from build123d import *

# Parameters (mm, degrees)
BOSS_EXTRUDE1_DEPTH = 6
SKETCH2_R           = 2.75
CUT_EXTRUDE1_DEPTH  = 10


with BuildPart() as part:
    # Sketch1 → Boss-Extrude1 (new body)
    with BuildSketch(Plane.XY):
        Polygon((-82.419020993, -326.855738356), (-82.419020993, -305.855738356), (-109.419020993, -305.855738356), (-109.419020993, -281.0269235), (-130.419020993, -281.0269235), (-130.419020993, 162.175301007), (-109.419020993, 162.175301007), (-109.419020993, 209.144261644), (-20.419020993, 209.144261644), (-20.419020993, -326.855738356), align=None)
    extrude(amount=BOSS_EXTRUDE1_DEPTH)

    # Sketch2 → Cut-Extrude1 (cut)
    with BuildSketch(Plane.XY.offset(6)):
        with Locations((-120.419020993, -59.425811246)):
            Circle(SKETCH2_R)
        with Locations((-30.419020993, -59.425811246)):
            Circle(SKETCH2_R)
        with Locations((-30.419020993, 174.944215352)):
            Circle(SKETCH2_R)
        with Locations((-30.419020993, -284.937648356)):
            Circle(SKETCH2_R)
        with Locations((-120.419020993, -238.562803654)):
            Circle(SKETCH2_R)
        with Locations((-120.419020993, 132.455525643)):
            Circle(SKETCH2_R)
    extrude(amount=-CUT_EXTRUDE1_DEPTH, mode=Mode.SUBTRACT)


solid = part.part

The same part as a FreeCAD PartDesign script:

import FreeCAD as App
import Part
import Sketcher

V = App.Vector

doc = App.newDocument("Part")
params = doc.addObject("Spreadsheet::Sheet", "Params")
for row, (alias, value) in enumerate([
    ("sketch1_width", "62 mm"),
    ("sketch1_width2", "89 mm"),
    ("sketch1_width3", "21 mm"),
    ("sketch1_height", "536 mm"),
    ("pad1_length", "6 mm"),
    ("sketch2_diameter", "5.5 mm"),
    ("pocket1_length", "10 mm"),
], start=1):
    params.set(f"A{row}", alias)
    params.set(f"B{row}", "=" + value)
    params.setAlias(f"B{row}", alias)

body = doc.addObject("PartDesign::Body", "Body")

sketch1 = doc.addObject("Sketcher::SketchObject", "Sketch")
body.addObject(sketch1)
sketch1.AttachmentSupport = (doc.XY_Plane, [""])
sketch1.MapMode = "FlatFace"
sketch1.addGeometry(Part.LineSegment(V(-82, -306, 0), V(-82, -327, 0)), False)
sketch1.addGeometry(Part.LineSegment(V(-82, -327, 0), V(-20, -327, 0)), False)
sketch1.addGeometry(Part.LineSegment(V(-20, -327, 0), V(-20, 209, 0)), False)
sketch1.addGeometry(Part.LineSegment(V(-20, 209, 0), V(-109, 209, 0)), False)
sketch1.addGeometry(Part.LineSegment(V(-109, 209, 0), V(-109, 162, 0)), False)
sketch1.addGeometry(Part.LineSegment(V(-109, 162, 0), V(-130, 162, 0)), False)
sketch1.addGeometry(Part.LineSegment(V(-130, 162, 0), V(-130, -281, 0)), False)
sketch1.addGeometry(Part.LineSegment(V(-130, -281, 0), V(-109, -281, 0)), False)
sketch1.addGeometry(Part.LineSegment(V(-109, -281, 0), V(-109, -306, 0)), False)
sketch1.addGeometry(Part.LineSegment(V(-109, -306, 0), V(-82, -306, 0)), False)
sketch1.addConstraint(Sketcher.Constraint("Coincident", 0, 2, 1, 1))
sketch1.addConstraint(Sketcher.Constraint("Coincident", 1, 2, 2, 1))
sketch1.addConstraint(Sketcher.Constraint("Coincident", 2, 2, 3, 1))
sketch1.addConstraint(Sketcher.Constraint("Coincident", 3, 2, 4, 1))
sketch1.addConstraint(Sketcher.Constraint("Coincident", 4, 2, 5, 1))
sketch1.addConstraint(Sketcher.Constraint("Coincident", 5, 2, 6, 1))
sketch1.addConstraint(Sketcher.Constraint("Coincident", 6, 2, 7, 1))
sketch1.addConstraint(Sketcher.Constraint("Coincident", 7, 2, 8, 1))
sketch1.addConstraint(Sketcher.Constraint("Coincident", 8, 2, 9, 1))
sketch1.addConstraint(Sketcher.Constraint("Coincident", 9, 2, 0, 1))
sketch1.addConstraint(Sketcher.Constraint("Vertical", 0))
sketch1.addConstraint(Sketcher.Constraint("Horizontal", 1))
sketch1.addConstraint(Sketcher.Constraint("Vertical", 2))
sketch1.addConstraint(Sketcher.Constraint("Horizontal", 3))
sketch1.addConstraint(Sketcher.Constraint("Vertical", 4))
sketch1.addConstraint(Sketcher.Constraint("Horizontal", 5))
sketch1.addConstraint(Sketcher.Constraint("Vertical", 6))
sketch1.addConstraint(Sketcher.Constraint("Horizontal", 7))
sketch1.addConstraint(Sketcher.Constraint("Vertical", 8))
sketch1.addConstraint(Sketcher.Constraint("Horizontal", 9))
sketch1.addConstraint(Sketcher.Constraint("Vertical", 4, 2, 7, 2))
sketch1.addConstraint(Sketcher.Constraint("Equal", 7, 0))
sketch1.addConstraint(Sketcher.Constraint("DistanceX", 1, 1, 1, 2, 62.0))
sketch1.addConstraint(Sketcher.Constraint("DistanceX", 3, 2, 3, 1, 89.0))
sketch1.addConstraint(Sketcher.Constraint("DistanceX", 5, 2, 5, 1, 21.0))
sketch1.addConstraint(Sketcher.Constraint("DistanceY", 2, 1, 2, 2, 536.0))
sketch1.addConstraint(Sketcher.Constraint("DistanceY", 4, 2, 4, 1, 46.968961))
sketch1.addConstraint(Sketcher.Constraint("DistanceY", -1, 1, 4, 2, 162.175301))
sketch1.addConstraint(Sketcher.Constraint("DistanceY", 6, 2, 6, 1, 443.202225))
sketch1.addConstraint(Sketcher.Constraint("DistanceX", 0, 2, -1, 1, 82.419021))
sketch1.setExpression("Constraints[22]", "Params.sketch1_width")
sketch1.setExpression("Constraints[23]", "Params.sketch1_width2")
sketch1.setExpression("Constraints[24]", "Params.sketch1_width3")
sketch1.setExpression("Constraints[25]", "Params.sketch1_height")
pad1 = doc.addObject("PartDesign::Pad", "Pad")
body.addObject(pad1)
pad1.Profile = sketch1
pad1.setExpression("Length", "Params.pad1_length")

sketch2 = doc.addObject("Sketcher::SketchObject", "Sketch001")
body.addObject(sketch2)
sketch2.AttachmentSupport = (doc.XY_Plane, [""])
sketch2.MapMode = "FlatFace"
sketch2.AttachmentOffset = App.Placement(V(0, 0, 6), App.Rotation())
sketch2.addGeometry(Part.Circle(V(-120.4, -59.4, 0), V(0, 0, 1), 2.8), False)
sketch2.addGeometry(Part.Circle(V(-30.4, -59.4, 0), V(0, 0, 1), 2.8), False)
sketch2.addGeometry(Part.Circle(V(-30.4, 174.9, 0), V(0, 0, 1), 2.8), False)
sketch2.addGeometry(Part.Circle(V(-30.4, -284.9, 0), V(0, 0, 1), 2.8), False)
sketch2.addGeometry(Part.Circle(V(-120.4, -238.6, 0), V(0, 0, 1), 2.8), False)
sketch2.addGeometry(Part.Circle(V(-120.4, 132.5, 0), V(0, 0, 1), 2.8), False)
sketch2.addConstraint(Sketcher.Constraint("Equal", 0, 1))
sketch2.addConstraint(Sketcher.Constraint("Equal", 1, 2))
sketch2.addConstraint(Sketcher.Constraint("Equal", 2, 3))
sketch2.addConstraint(Sketcher.Constraint("Equal", 3, 4))
sketch2.addConstraint(Sketcher.Constraint("Equal", 4, 5))
sketch2.addConstraint(Sketcher.Constraint("Horizontal", 0, 3, 1, 3))
sketch2.addConstraint(Sketcher.Constraint("Vertical", 1, 3, 2, 3))
sketch2.addConstraint(Sketcher.Constraint("Vertical", 2, 3, 3, 3))
sketch2.addConstraint(Sketcher.Constraint("Vertical", 0, 3, 4, 3))
sketch2.addConstraint(Sketcher.Constraint("Vertical", 4, 3, 5, 3))
sketch2.addConstraint(Sketcher.Constraint("Diameter", 0, 5.5))
sketch2.addConstraint(Sketcher.Constraint("DistanceX", 0, 3, 1, 3, 90.0))
sketch2.addConstraint(Sketcher.Constraint("DistanceX", 0, 3, -1, 1, 120.419021))
sketch2.addConstraint(Sketcher.Constraint("DistanceY", 0, 3, -1, 1, 59.425811))
sketch2.addConstraint(Sketcher.Constraint("DistanceY", 3, 3, -1, 1, 284.937648))
sketch2.addConstraint(Sketcher.Constraint("DistanceY", 4, 3, 2, 3, 413.507019))
sketch2.addConstraint(Sketcher.Constraint("DistanceY", 5, 3, 2, 3, 42.48869))
sketch2.addConstraint(Sketcher.Constraint("DistanceY", -1, 1, 2, 3, 174.944215))
sketch2.setExpression("Constraints[10]", "Params.sketch2_diameter")
pocket1 = doc.addObject("PartDesign::Pocket", "Pocket")
body.addObject(pocket1)
pocket1.Profile = sketch2
pocket1.setExpression("Length", "Params.pocket1_length")

doc.recompute()
